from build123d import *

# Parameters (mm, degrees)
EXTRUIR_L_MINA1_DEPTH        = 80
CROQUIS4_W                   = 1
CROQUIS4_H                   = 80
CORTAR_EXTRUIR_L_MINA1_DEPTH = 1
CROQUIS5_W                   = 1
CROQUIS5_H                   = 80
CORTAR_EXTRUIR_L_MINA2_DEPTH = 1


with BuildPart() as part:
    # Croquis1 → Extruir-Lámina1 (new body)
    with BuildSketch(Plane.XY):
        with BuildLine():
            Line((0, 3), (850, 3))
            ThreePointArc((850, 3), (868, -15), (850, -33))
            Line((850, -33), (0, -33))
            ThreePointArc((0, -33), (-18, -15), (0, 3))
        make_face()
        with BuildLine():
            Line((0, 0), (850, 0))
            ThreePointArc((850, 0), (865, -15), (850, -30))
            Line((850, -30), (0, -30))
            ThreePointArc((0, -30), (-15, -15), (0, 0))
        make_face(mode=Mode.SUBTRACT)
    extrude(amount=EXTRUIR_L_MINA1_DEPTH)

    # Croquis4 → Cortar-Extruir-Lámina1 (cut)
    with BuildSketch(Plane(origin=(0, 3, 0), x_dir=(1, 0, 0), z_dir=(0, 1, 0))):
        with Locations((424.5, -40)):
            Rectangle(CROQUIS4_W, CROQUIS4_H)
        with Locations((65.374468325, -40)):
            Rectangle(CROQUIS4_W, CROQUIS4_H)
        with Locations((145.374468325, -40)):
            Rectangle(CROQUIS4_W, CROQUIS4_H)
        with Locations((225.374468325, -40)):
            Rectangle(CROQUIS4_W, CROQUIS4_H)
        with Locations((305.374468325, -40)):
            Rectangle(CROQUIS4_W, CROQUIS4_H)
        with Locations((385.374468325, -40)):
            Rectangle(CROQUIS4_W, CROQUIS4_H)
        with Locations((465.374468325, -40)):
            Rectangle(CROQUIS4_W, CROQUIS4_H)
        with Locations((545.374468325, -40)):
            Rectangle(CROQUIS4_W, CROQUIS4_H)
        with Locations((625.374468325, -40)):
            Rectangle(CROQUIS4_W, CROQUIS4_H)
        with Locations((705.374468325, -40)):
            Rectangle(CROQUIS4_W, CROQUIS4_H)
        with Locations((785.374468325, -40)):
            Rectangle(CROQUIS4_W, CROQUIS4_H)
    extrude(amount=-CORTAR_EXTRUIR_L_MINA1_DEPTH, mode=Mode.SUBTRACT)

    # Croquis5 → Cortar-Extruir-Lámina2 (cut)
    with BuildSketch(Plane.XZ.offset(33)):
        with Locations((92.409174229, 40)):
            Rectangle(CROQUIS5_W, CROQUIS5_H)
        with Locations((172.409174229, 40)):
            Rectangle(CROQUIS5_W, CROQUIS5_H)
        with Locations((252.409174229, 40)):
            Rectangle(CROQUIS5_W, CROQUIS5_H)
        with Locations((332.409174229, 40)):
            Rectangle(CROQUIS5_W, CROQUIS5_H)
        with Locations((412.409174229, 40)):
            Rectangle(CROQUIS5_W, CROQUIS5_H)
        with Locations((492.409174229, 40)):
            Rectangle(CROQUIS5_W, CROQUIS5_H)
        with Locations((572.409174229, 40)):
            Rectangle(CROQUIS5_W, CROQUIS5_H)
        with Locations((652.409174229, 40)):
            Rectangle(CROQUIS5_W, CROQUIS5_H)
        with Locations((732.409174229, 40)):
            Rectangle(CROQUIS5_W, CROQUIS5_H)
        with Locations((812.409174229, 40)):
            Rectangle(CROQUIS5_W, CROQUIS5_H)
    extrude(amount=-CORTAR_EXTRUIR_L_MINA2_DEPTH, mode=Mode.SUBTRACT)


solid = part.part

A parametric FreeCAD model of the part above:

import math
import FreeCAD as App
import Part
import Sketcher

V = App.Vector


def add_polygon(sketch, points):
    """Adds a closed chain of lines whose ends are joined by coincident constraints."""
    first, n = sketch.GeometryCount, len(points)
    for a, b in zip(points, points[1:] + points[:1]):
        sketch.addGeometry(Part.LineSegment(App.Vector(*a, 0), App.Vector(*b, 0)), False)
    for i in range(n):
        sketch.addConstraint(Sketcher.Constraint("Coincident", first + i, 2, first + (i + 1) % n, 1))

doc = App.newDocument("Part")
body = doc.addObject("PartDesign::Body", "Body")

# Sketch on XY plane
sketch1 = body.newObject("Sketcher::SketchObject", "Sketch")
sketch1.AttachmentSupport = (doc.getObject("XY_Plane"), [""])
sketch1.MapMode = "FlatFace"
sketch1.addGeometry([
    Part.LineSegment(V(850, 3, 0), V(0, 3, 0)),  # 0
    Part.ArcOfCircle(Part.Circle(V(0, -15, 0), V(0, 0, 1), 18), math.radians(90), math.radians(270)),  # 1
    Part.LineSegment(V(0, -33, 0), V(850, -33, 0)),  # 2
    Part.ArcOfCircle(Part.Circle(V(850, -15, 0), V(0, 0, 1), 18), math.radians(-90), math.radians(90)),  # 3
    Part.LineSegment(V(0, 0, 0), V(850, 0, 0)),  # 4
    Part.ArcOfCircle(Part.Circle(V(850, -15, 0), V(0, 0, 1), 15), math.radians(-90), math.radians(90)),  # 5
    Part.LineSegment(V(850, -30, 0), V(0, -30, 0)),  # 6
    Part.ArcOfCircle(Part.Circle(V(0, -15, 0), V(0, 0, 1), 15), math.radians(90), math.radians(270)),  # 7
], False)
sketch1.addConstraint([
    Sketcher.Constraint("Tangent", 0, 2, 1, 1),
    Sketcher.Constraint("Tangent", 1, 2, 2, 1),
    Sketcher.Constraint("Tangent", 2, 2, 3, 1),
    Sketcher.Constraint("Tangent", 3, 2, 0, 1),
    Sketcher.Constraint("Tangent", 4, 2, 5, 2),
    Sketcher.Constraint("Tangent", 5, 1, 6, 1),
    Sketcher.Constraint("Tangent", 6, 2, 7, 2),
    Sketcher.Constraint("Tangent", 7, 1, 4, 1),
    Sketcher.Constraint("Horizontal", 0),
    Sketcher.Constraint("Horizontal", 2),
    Sketcher.Constraint("Horizontal", 4),
    Sketcher.Constraint("Horizontal", 6),
    Sketcher.Constraint("Coincident", 7, 1, -1, 1),
    Sketcher.Constraint("Coincident", 5, 3, 3, 3),
    Sketcher.Constraint("PointOnObject", 1, 3, -2),
    Sketcher.Constraint("Radius", 1, 18.0),
    Sketcher.Constraint("Radius", 5, 15.0),
    Sketcher.Constraint("DistanceX", 0, 2, 0, 1, 850.0),
])
pad1 = body.newObject("PartDesign::Pad", "Pad")
pad1.Profile = sketch1
pad1.Length = 80

# Sketch on XZ plane
sketch2 = body.newObject("Sketcher::SketchObject", "Sketch001")
sketch2.AttachmentSupport = (doc.getObject("XZ_Plane"), [""])
sketch2.MapMode = "FlatFace"
sketch2.AttachmentOffset = App.Placement(V(0, 0, -3), App.Rotation())
add_polygon(sketch2, [(424, 0), (424, 80), (425, 80), (425, 0)])  # lines 0-3
add_polygon(sketch2, [(64.9, 0), (64.9, 80), (65.9, 80), (65.9, 0)])  # lines 4-7
add_polygon(sketch2, [(144.9, 0), (144.9, 80), (145.9, 80), (145.9, 0)])  # lines 8-11
add_polygon(sketch2, [(224.9, 0), (224.9, 80), (225.9, 80), (225.9, 0)])  # lines 12-15
add_polygon(sketch2, [(304.9, 0), (304.9, 80), (305.9, 80), (305.9, 0)])  # lines 16-19
add_polygon(sketch2, [(384.9, 0), (384.9, 80), (385.9, 80), (385.9, 0)])  # lines 20-23
add_polygon(sketch2, [(464.9, 0), (464.9, 80), (465.9, 80), (465.9, 0)])  # lines 24-27
add_polygon(sketch2, [(544.9, 0), (544.9, 80), (545.9, 80), (545.9, 0)])  # lines 28-31
add_polygon(sketch2, [(624.9, 0), (624.9, 80), (625.9, 80), (625.9, 0)])  # lines 32-35
add_polygon(sketch2, [(704.9, 0), (704.9, 80), (705.9, 80), (705.9, 0)])  # lines 36-39
add_polygon(sketch2, [(784.9, 0), (784.9, 80), (785.9, 80), (785.9, 0)])  # lines 40-43
sketch2.addConstraint([
    Sketcher.Constraint("Vertical", 0),
    Sketcher.Constraint("Horizontal", 1),
    Sketcher.Constraint("Vertical", 2),
    Sketcher.Constraint("Horizontal", 3),
    Sketcher.Constraint("Vertical", 4),
    Sketcher.Constraint("Horizontal", 5),
    Sketcher.Constraint("Vertical", 6),
    Sketcher.Constraint("Horizontal", 7),
    Sketcher.Constraint("Vertical", 8),
    Sketcher.Constraint("Horizontal", 9),
    Sketcher.Constraint("Vertical", 10),
    Sketcher.Constraint("Horizontal", 11),
    Sketcher.Constraint("Vertical", 12),
    Sketcher.Constraint("Horizontal", 13),
    Sketcher.Constraint("Vertical", 14),
    Sketcher.Constraint("Horizontal", 15),
    Sketcher.Constraint("Vertical", 16),
    Sketcher.Constraint("Horizontal", 17),
    Sketcher.Constraint("Vertical", 18),
    Sketcher.Constraint("Horizontal", 19),
    Sketcher.Constraint("Vertical", 20),
    Sketcher.Constraint("Horizontal", 21),
    Sketcher.Constraint("Vertical", 22),
    Sketcher.Constraint("Horizontal", 23),
    Sketcher.Constraint("Vertical", 24),
    Sketcher.Constraint("Horizontal", 25),
    Sketcher.Constraint("Vertical", 26),
    Sketcher.Constraint("Horizontal", 27),
    Sketcher.Constraint("Vertical", 28),
    Sketcher.Constraint("Horizontal", 29),
    Sketcher.Constraint("Vertical", 30),
    Sketcher.Constraint("Horizontal", 31),
    Sketcher.Constraint("Vertical", 32),
    Sketcher.Constraint("Horizontal", 33),
    Sketcher.Constraint("Vertical", 34),
    Sketcher.Constraint("Horizontal", 35),
    Sketcher.Constraint("Vertical", 36),
    Sketcher.Constraint("Horizontal", 37),
    Sketcher.Constraint("Vertical", 38),
    Sketcher.Constraint("Horizontal", 39),
    Sketcher.Constraint("Vertical", 40),
    Sketcher.Constraint("Horizontal", 41),
    Sketcher.Constraint("Vertical", 42),
    Sketcher.Constraint("Horizontal", 43),
    Sketcher.Constraint("PointOnObject", 2, 2, -1),
    Sketcher.Constraint("PointOnObject", 6, 2, -1),
    Sketcher.Constraint("PointOnObject", 10, 2, -1),
    Sketcher.Constraint("PointOnObject", 14, 2, -1),
    Sketcher.Constraint("PointOnObject", 18, 2, -1),
    Sketcher.Constraint("PointOnObject", 22, 2, -1),
    Sketcher.Constraint("PointOnObject", 26, 2, -1),
    Sketcher.Constraint("PointOnObject", 30, 2, -1),
    Sketcher.Constraint("PointOnObject", 34, 2, -1),
    Sketcher.Constraint("PointOnObject", 38, 2, -1),
    Sketcher.Constraint("PointOnObject", 42, 2, -1),
    Sketcher.Constraint("Horizontal", 1, 2, 4, 2),
    Sketcher.Constraint("Horizontal", 5, 2, 8, 2),
    Sketcher.Constraint("Horizontal", 9, 2, 12, 2),
    Sketcher.Constraint("Horizontal", 13, 2, 16, 2),
    Sketcher.Constraint("Horizontal", 17, 2, 20, 2),
    Sketcher.Constraint("Horizontal", 21, 2, 24, 2),
    Sketcher.Constraint("Horizontal", 25, 2, 28, 2),
    Sketcher.Constraint("Horizontal", 29, 2, 32, 2),
    Sketcher.Constraint("Horizontal", 33, 2, 36, 2),
    Sketcher.Constraint("Horizontal", 37, 2, 40, 2),
    Sketcher.Constraint("Equal", 3, 5),
    Sketcher.Constraint("Equal", 7, 9),
    Sketcher.Constraint("Equal", 11, 13),
    Sketcher.Constraint("Equal", 15, 17),
    Sketcher.Constraint("Equal", 19, 21),
    Sketcher.Constraint("Equal", 23, 25),
    Sketcher.Constraint("Equal", 27, 29),
    Sketcher.Constraint("Equal", 31, 33),
    Sketcher.Constraint("Equal", 35, 37),
    Sketcher.Constraint("Equal", 39, 41),
    Sketcher.Constraint("DistanceX", 1, 1, 1, 2, 1.0),
    Sketcher.Constraint("DistanceY", 0, 1, 0, 2, 80.0),
    Sketcher.Constraint("DistanceX", -1, 1, 0, 2, 424.0),
    Sketcher.Constraint("DistanceX", 5, 2, 8, 2, 79.0),
    Sketcher.Constraint("DistanceX", 9, 2, 12, 2, 79.0),
    Sketcher.Constraint("DistanceX", 13, 2, 16, 2, 79.0),
    Sketcher.Constraint("DistanceX", 17, 2, 20, 2, 79.0),
    Sketcher.Constraint("DistanceX", 21, 2, 24, 2, 79.0),
    Sketcher.Constraint("DistanceX", 25, 2, 28, 2, 79.0),
    Sketcher.Constraint("DistanceX", 29, 2, 32, 2, 79.0),
    Sketcher.Constraint("DistanceX", 33, 2, 36, 2, 79.0),
    Sketcher.Constraint("DistanceX", 37, 2, 40, 2, 79.0),
    Sketcher.Constraint("DistanceX", -1, 1, 4, 2, 64.874468),
])
pocket1 = body.newObject("PartDesign::Pocket", "Pocket")
pocket1.Profile = sketch2
pocket1.Length = 1
pocket1.Reversed = True

# Sketch on XZ plane
sketch3 = body.newObject("Sketcher::SketchObject", "Sketch002")
sketch3.AttachmentSupport = (doc.getObject("XZ_Plane"), [""])
sketch3.MapMode = "FlatFace"
sketch3.AttachmentOffset = App.Placement(V(0, 0, 33), App.Rotation())
add_polygon(sketch3, [(91.9, 80), (91.9, 0), (92.9, 0), (92.9, 80)])  # lines 0-3
add_polygon(sketch3, [(171.9, 80), (171.9, 0), (172.9, 0), (172.9, 80)])  # lines 4-7
add_polygon(sketch3, [(251.9, 80), (251.9, 0), (252.9, 0), (252.9, 80)])  # lines 8-11
add_polygon(sketch3, [(331.9, 80), (331.9, 0), (332.9, 0), (332.9, 80)])  # lines 12-15
add_polygon(sketch3, [(411.9, 80), (411.9, 0), (412.9, 0), (412.9, 80)])  # lines 16-19
add_polygon(sketch3, [(491.9, 80), (491.9, 0), (492.9, 0), (492.9, 80)])  # lines 20-23
add_polygon(sketch3, [(571.9, 80), (571.9, 0), (572.9, 0), (572.9, 80)])  # lines 24-27
add_polygon(sketch3, [(651.9, 80), (651.9, 0), (652.9, 0), (652.9, 80)])  # lines 28-31
add_polygon(sketch3, [(731.9, 80), (731.9, 0), (732.9, 0), (732.9, 80)])  # lines 32-35
add_polygon(sketch3, [(811.9, 80), (811.9, 0), (812.9, 0), (812.9, 80)])  # lines 36-39
sketch3.addConstraint([
    Sketcher.Constraint("Vertical", 0),
    Sketcher.Constraint("Horizontal", 1),
    Sketcher.Constraint("Vertical", 2),
    Sketcher.Constraint("Horizontal", 3),
    Sketcher.Constraint("Vertical", 4),
    Sketcher.Constraint("Horizontal", 5),
    Sketcher.Constraint("Vertical", 6),
    Sketcher.Constraint("Horizontal", 7),
    Sketcher.Constraint("Vertical", 8),
    Sketcher.Constraint("Horizontal", 9),
    Sketcher.Constraint("Vertical", 10),
    Sketcher.Constraint("Horizontal", 11),
    Sketcher.Constraint("Vertical", 12),
    Sketcher.Constraint("Horizontal", 13),
    Sketcher.Constraint("Vertical", 14),
    Sketcher.Constraint("Horizontal", 15),
    Sketcher.Constraint("Vertical", 16),
    Sketcher.Constraint("Horizontal", 17),
    Sketcher.Constraint("Vertical", 18),
    Sketcher.Constraint("Horizontal", 19),
    Sketcher.Constraint("Vertical", 20),
    Sketcher.Constraint("Horizontal", 21),
    Sketcher.Constraint("Vertical", 22),
    Sketcher.Constraint("Horizontal", 23),
    Sketcher.Constraint("Vertical", 24),
    Sketcher.Constraint("Horizontal", 25),
    Sketcher.Constraint("Vertical", 26),
    Sketcher.Constraint("Horizontal", 27),
    Sketcher.Constraint("Vertical", 28),
    Sketcher.Constraint("Horizontal", 29),
    Sketcher.Constraint("Vertical", 30),
    Sketcher.Constraint("Horizontal", 31),
    Sketcher.Constraint("Vertical", 32),
    Sketcher.Constraint("Horizontal", 33),
    Sketcher.Constraint("Vertical", 34),
    Sketcher.Constraint("Horizontal", 35),
    Sketcher.Constraint("Vertical", 36),
    Sketcher.Constraint("Horizontal", 37),
    Sketcher.Constraint("Vertical", 38),
    Sketcher.Constraint("Horizontal", 39),
    Sketcher.Constraint("PointOnObject", 0, 2, -1),
    Sketcher.Constraint("PointOnObject", 4, 2, -1),
    Sketcher.Constraint("PointOnObject", 8, 2, -1),
    Sketcher.Constraint("PointOnObject", 12, 2, -1),
    Sketcher.Constraint("PointOnObject", 16, 2, -1),
    Sketcher.Constraint("PointOnObject", 20, 2, -1),
    Sketcher.Constraint("PointOnObject", 24, 2, -1),
    Sketcher.Constraint("PointOnObject", 28, 2, -1),
    Sketcher.Constraint("PointOnObject", 32, 2, -1),
    Sketcher.Constraint("PointOnObject", 36, 2, -1),
    Sketcher.Constraint("Horizontal", 3, 2, 6, 2),
    Sketcher.Constraint("Horizontal", 7, 2, 10, 2),
    Sketcher.Constraint("Horizontal", 11, 2, 14, 2),
    Sketcher.Constraint("Horizontal", 15, 2, 18, 2),
    Sketcher.Constraint("Horizontal", 19, 2, 22, 2),
    Sketcher.Constraint("Horizontal", 23, 2, 26, 2),
    Sketcher.Constraint("Horizontal", 27, 2, 30, 2),
    Sketcher.Constraint("Horizontal", 31, 2, 34, 2),
    Sketcher.Constraint("Horizontal", 35, 2, 38, 2),
    Sketcher.Constraint("Equal", 3, 5),
    Sketcher.Constraint("Equal", 7, 9),
    Sketcher.Constraint("Equal", 11, 13),
    Sketcher.Constraint("Equal", 15, 17),
    Sketcher.Constraint("Equal", 19, 21),
    Sketcher.Constraint("Equal", 23, 25),
    Sketcher.Constraint("Equal", 27, 29),
    Sketcher.Constraint("Equal", 31, 33),
    Sketcher.Constraint("Equal", 35, 37),
    Sketcher.Constraint("DistanceX", 1, 1, 1, 2, 1.0),
    Sketcher.Constraint("DistanceY", 0, 2, 0, 1, 80.0),
    Sketcher.Constraint("DistanceX", 1, 2, 4, 2, 79.0),
    Sketcher.Constraint("DistanceX", 5, 2, 8, 2, 79.0),
    Sketcher.Constraint("DistanceX", 9, 2, 12, 2, 79.0),
    Sketcher.Constraint("DistanceX", 13, 2, 16, 2, 79.0),
    Sketcher.Constraint("DistanceX", 17, 2, 20, 2, 79.0),
    Sketcher.Constraint("DistanceX", 21, 2, 24, 2, 79.0),
    Sketcher.Constraint("DistanceX", 25, 2, 28, 2, 79.0),
    Sketcher.Constraint("DistanceX", 29, 2, 32, 2, 79.0),
    Sketcher.Constraint("DistanceX", 33, 2, 36, 2, 79.0),
    Sketcher.Constraint("DistanceX", -1, 1, 0, 2, 91.909174),
])
pocket2 = body.newObject("PartDesign::Pocket", "Pocket001")
pocket2.Profile = sketch3
pocket2.Length = 1

doc.recompute()
